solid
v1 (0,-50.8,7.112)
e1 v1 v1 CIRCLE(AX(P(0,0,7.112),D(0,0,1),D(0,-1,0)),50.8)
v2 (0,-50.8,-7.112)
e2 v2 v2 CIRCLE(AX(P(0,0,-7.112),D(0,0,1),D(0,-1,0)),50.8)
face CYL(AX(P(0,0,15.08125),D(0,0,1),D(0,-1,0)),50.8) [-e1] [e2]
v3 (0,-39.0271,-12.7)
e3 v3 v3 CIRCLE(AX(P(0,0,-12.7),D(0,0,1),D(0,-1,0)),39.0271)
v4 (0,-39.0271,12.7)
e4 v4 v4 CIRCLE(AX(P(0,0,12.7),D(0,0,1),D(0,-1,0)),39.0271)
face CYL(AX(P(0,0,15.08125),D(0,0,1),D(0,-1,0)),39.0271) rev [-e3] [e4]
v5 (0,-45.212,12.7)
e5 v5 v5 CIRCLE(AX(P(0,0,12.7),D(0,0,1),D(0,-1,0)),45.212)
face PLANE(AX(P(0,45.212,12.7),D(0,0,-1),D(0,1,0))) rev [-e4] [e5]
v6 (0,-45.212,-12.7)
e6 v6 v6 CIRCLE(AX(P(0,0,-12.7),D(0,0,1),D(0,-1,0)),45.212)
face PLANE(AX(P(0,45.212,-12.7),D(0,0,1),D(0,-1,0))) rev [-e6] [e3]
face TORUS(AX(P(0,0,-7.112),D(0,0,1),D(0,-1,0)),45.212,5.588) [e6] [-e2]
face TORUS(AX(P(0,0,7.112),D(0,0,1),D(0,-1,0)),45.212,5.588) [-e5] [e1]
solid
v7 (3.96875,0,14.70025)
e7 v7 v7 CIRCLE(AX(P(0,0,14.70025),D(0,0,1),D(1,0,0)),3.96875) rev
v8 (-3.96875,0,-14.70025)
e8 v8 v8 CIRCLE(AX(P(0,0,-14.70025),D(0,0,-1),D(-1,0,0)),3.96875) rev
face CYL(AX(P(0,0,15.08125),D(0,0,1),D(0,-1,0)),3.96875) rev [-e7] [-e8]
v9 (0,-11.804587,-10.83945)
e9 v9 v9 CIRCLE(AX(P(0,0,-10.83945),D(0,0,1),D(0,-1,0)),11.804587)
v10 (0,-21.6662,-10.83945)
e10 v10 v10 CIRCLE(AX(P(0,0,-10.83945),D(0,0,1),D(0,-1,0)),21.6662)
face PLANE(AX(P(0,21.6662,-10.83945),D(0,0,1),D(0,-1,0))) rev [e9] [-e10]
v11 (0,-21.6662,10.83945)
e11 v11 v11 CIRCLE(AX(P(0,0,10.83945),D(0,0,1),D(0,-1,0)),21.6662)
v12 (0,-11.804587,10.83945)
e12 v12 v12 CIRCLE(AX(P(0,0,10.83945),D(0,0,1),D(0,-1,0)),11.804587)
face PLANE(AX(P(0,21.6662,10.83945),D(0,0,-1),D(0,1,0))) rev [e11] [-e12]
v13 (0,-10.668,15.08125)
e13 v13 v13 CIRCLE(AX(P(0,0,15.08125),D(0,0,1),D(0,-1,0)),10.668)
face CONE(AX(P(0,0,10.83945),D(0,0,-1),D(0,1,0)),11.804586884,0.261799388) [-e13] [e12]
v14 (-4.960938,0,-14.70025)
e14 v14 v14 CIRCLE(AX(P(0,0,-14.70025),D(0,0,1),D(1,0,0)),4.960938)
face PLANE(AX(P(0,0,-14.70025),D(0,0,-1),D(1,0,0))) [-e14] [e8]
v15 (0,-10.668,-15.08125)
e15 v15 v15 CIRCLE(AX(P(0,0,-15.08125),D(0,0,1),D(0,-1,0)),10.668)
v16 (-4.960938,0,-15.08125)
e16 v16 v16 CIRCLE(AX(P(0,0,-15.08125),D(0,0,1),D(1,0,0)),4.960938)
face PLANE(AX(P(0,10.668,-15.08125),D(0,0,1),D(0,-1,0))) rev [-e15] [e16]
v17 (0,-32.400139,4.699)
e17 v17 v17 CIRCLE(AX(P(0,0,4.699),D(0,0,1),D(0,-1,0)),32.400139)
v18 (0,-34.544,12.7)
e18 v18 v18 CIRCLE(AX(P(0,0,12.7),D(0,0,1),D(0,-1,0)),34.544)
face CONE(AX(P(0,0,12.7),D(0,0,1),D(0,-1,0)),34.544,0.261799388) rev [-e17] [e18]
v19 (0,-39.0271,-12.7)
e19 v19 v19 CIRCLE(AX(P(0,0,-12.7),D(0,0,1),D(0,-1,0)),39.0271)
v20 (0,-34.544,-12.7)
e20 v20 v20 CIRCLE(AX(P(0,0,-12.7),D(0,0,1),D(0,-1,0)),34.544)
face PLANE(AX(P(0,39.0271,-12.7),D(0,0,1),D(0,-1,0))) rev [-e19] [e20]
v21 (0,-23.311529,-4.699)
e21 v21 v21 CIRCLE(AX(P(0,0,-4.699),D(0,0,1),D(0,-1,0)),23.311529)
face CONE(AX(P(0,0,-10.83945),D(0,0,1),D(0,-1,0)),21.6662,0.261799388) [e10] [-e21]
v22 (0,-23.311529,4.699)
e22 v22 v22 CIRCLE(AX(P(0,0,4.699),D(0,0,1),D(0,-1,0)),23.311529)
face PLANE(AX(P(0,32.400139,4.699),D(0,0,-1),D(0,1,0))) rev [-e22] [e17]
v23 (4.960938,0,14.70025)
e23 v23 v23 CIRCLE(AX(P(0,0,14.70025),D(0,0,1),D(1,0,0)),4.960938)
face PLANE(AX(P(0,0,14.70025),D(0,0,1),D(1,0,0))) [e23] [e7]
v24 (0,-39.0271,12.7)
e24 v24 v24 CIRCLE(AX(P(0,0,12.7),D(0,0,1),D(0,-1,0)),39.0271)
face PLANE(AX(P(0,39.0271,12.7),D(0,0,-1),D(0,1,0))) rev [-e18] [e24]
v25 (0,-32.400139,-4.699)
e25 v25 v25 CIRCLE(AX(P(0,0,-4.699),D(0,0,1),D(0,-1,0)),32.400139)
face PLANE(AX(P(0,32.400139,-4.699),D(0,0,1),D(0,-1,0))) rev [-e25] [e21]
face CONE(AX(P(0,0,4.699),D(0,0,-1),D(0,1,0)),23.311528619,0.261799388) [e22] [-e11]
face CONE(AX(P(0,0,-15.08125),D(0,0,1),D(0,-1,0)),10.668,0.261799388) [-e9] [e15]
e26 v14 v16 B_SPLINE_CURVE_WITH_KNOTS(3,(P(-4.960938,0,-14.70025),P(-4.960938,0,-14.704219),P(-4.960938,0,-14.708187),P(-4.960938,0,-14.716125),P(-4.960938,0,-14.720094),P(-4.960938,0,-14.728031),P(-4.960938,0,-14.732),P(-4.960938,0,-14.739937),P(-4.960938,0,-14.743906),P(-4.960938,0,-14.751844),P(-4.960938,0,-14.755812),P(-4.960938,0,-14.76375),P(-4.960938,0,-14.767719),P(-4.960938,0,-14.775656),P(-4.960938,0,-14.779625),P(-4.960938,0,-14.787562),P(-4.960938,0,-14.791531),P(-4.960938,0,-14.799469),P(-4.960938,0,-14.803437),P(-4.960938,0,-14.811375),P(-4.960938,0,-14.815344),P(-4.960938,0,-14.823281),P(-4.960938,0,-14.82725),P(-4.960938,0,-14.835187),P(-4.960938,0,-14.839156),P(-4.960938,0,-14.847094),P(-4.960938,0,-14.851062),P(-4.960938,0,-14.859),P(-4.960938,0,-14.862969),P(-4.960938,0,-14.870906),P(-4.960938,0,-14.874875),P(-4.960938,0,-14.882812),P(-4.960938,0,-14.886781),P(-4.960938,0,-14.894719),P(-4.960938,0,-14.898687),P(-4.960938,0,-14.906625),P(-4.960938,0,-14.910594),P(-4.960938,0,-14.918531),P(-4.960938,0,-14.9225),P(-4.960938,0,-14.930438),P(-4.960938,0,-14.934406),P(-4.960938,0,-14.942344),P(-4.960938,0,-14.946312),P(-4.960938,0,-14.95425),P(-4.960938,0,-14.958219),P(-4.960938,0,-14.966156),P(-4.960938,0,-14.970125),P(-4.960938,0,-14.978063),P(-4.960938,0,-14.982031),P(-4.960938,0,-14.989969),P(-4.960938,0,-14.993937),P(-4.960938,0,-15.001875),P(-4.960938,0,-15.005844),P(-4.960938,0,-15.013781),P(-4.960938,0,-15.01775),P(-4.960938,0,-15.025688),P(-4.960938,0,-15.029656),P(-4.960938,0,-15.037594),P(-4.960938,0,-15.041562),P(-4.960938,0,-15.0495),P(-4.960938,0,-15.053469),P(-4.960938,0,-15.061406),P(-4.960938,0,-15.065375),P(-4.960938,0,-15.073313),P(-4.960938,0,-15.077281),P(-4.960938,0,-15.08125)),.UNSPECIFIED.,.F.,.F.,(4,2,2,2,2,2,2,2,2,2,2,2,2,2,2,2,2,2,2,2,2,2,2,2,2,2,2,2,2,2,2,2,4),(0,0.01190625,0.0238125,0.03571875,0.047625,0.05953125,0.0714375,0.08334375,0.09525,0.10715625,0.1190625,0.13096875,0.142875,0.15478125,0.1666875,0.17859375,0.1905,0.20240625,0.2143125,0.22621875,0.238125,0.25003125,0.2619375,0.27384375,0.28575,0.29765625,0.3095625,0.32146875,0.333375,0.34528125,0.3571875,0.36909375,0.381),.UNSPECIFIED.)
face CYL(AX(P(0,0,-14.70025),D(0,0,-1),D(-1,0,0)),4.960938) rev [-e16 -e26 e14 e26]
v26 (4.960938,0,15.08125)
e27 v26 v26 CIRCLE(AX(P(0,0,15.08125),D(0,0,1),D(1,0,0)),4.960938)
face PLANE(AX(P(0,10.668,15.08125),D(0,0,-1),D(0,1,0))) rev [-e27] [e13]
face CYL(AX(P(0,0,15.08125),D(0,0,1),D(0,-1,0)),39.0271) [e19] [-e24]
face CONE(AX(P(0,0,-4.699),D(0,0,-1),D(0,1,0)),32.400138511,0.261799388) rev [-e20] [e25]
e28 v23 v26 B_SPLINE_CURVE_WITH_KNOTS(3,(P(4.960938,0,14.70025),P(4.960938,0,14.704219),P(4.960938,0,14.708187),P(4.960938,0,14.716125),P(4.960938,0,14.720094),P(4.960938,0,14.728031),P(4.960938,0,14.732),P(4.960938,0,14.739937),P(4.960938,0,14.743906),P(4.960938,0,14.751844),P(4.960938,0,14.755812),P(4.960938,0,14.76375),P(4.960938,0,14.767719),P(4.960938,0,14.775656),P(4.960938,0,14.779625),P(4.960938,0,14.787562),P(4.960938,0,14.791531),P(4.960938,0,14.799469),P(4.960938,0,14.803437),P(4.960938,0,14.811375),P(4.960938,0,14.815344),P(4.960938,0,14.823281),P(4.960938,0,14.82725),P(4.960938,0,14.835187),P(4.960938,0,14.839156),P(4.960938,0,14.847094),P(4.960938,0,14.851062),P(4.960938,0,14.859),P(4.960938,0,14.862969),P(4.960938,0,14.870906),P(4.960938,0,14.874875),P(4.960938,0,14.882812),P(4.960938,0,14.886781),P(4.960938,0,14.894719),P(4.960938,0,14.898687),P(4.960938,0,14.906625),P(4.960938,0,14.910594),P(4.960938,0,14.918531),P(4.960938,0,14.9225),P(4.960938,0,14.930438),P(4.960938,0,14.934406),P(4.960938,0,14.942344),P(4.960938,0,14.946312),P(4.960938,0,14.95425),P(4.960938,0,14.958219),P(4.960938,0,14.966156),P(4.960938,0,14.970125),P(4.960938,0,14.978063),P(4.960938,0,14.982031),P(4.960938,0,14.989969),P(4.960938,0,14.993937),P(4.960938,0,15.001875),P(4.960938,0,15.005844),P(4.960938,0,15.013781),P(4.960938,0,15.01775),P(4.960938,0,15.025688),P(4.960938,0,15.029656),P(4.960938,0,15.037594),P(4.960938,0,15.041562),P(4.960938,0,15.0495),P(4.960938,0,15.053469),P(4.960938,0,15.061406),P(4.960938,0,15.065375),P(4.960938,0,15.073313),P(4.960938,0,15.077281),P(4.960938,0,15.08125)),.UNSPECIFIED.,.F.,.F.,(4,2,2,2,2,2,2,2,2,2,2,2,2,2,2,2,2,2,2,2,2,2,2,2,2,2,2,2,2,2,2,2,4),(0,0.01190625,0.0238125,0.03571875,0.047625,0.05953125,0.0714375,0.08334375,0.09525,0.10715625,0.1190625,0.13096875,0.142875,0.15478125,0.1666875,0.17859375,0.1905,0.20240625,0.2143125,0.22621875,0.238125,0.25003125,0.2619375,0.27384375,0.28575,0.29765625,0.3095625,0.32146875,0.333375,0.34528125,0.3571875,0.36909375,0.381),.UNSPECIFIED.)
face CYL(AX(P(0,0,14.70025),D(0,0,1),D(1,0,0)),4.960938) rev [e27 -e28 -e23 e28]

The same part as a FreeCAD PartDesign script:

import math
import FreeCAD as App
import Part
import Sketcher
Q = App.Units.Quantity

doc = App.newDocument("Part")
body = doc.addObject("PartDesign::Body", "Body")

sketch1 = body.newObject("Sketcher::SketchObject", "Sketch")
sketch1.AttachmentSupport = (doc.getObject("YZ_Plane"), [""])
sketch1.MapMode = "FlatFace"
sketch1.addGeometry([
    Part.LineSegment(App.Vector(51, -7, 0), App.Vector(51, 7, 0)),
    Part.ArcOfCircle(Part.Circle(App.Vector(45, 7, 0), App.Vector(0, 0, 1), 6), math.radians(0), math.radians(90)),
    Part.LineSegment(App.Vector(45, 13, 0), App.Vector(39, 13, 0)),
    Part.LineSegment(App.Vector(39, 13, 0), App.Vector(39, -13, 0)),
    Part.LineSegment(App.Vector(39, -13, 0), App.Vector(45, -13, 0)),
    Part.ArcOfCircle(Part.Circle(App.Vector(45, -7, 0), App.Vector(0, 0, 1), 6), math.radians(-90), math.radians(0)),
], False)
sketch1.addConstraint([
    Sketcher.Constraint("Tangent", 0, 2, 1, 1),
    Sketcher.Constraint("Tangent", 1, 2, 2, 1),
    Sketcher.Constraint("Coincident", 2, 2, 3, 1),
    Sketcher.Constraint("Coincident", 3, 2, 4, 1),
    Sketcher.Constraint("Tangent", 4, 2, 5, 1),
    Sketcher.Constraint("Tangent", 5, 2, 0, 1),
    Sketcher.Constraint("Vertical", 0),
    Sketcher.Constraint("Horizontal", 2),
    Sketcher.Constraint("Vertical", 3),
    Sketcher.Constraint("Horizontal", 4),
    Sketcher.Constraint("Equal", 1, 5),
    Sketcher.Constraint("DistanceY", 3, 2, 3, 1, Q("1 in")),
    Sketcher.Constraint("Radius", 1, Q("0.22 in")),
    Sketcher.Constraint("DistanceX", -1, 1, 0, 2, Q("2 in")),
    Sketcher.Constraint("DistanceY", -1, 1, 1, 2, Q("0.5 in")),
    Sketcher.Constraint("DistanceX", 2, 2, 2, 1, Q("0.2435 in")),
])
revolution = body.newObject("PartDesign::Revolution", "Revolution")
revolution.Profile = sketch1
revolution.ReferenceAxis = (sketch1, ["V_Axis"])
revolution.Angle = 360
body2 = doc.addObject("PartDesign::Body", "Body001")

sketch2 = body2.newObject("Sketcher::SketchObject", "Sketch001")
sketch2.AttachmentSupport = (doc.getObject("YZ_Plane001"), [""])
sketch2.MapMode = "FlatFace"
sketch2.addGeometry([
    Part.LineSegment(App.Vector(39, -12.7, 0), App.Vector(39, 12.7, 0)),
    Part.LineSegment(App.Vector(39, 12.7, 0), App.Vector(34.5, 12.7, 0)),
    Part.LineSegment(App.Vector(34.5, 12.7, 0), App.Vector(32.4, 4.7, 0)),
    Part.LineSegment(App.Vector(32.4, 4.7, 0), App.Vector(23.3, 4.7, 0)),
    Part.LineSegment(App.Vector(23.3, 4.7, 0), App.Vector(21.7, 10.8, 0)),
    Part.LineSegment(App.Vector(21.7, 10.8, 0), App.Vector(11.8, 10.8, 0)),
    Part.LineSegment(App.Vector(11.8, 10.8, 0), App.Vector(10.7, 15.1, 0)),
    Part.LineSegment(App.Vector(10.7, 15.1, 0), App.Vector(4, 15.1, 0)),
    Part.LineSegment(App.Vector(4, 15.1, 0), App.Vector(4, -15.1, 0)),
    Part.LineSegment(App.Vector(4, -15.1, 0), App.Vector(10.7, -15.1, 0)),
    Part.LineSegment(App.Vector(10.7, -15.1, 0), App.Vector(11.8, -10.8, 0)),
    Part.LineSegment(App.Vector(11.8, -10.8, 0), App.Vector(21.7, -10.8, 0)),
    Part.LineSegment(App.Vector(21.7, -10.8, 0), App.Vector(23.3, -4.7, 0)),
    Part.LineSegment(App.Vector(23.3, -4.7, 0), App.Vector(32.4, -4.7, 0)),
    Part.LineSegment(App.Vector(32.4, -4.7, 0), App.Vector(34.5, -12.7, 0)),
    Part.LineSegment(App.Vector(34.5, -12.7, 0), App.Vector(39, -12.7, 0)),
], False)
sketch2.addConstraint([
    Sketcher.Constraint("Coincident", 0, 2, 1, 1),
    Sketcher.Constraint("Coincident", 1, 2, 2, 1),
    Sketcher.Constraint("Coincident", 2, 2, 3, 1),
    Sketcher.Constraint("Coincident", 3, 2, 4, 1),
    Sketcher.Constraint("Coincident", 4, 2, 5, 1),
    Sketcher.Constraint("Coincident", 5, 2, 6, 1),
    Sketcher.Constraint("Coincident", 6, 2, 7, 1),
    Sketcher.Constraint("Coincident", 7, 2, 8, 1),
    Sketcher.Constraint("Coincident", 8, 2, 9, 1),
    Sketcher.Constraint("Coincident", 9, 2, 10, 1),
    Sketcher.Constraint("Coincident", 10, 2, 11, 1),
    Sketcher.Constraint("Coincident", 11, 2, 12, 1),
    Sketcher.Constraint("Coincident", 12, 2, 13, 1),
    Sketcher.Constraint("Coincident", 13, 2, 14, 1),
    Sketcher.Constraint("Coincident", 14, 2, 15, 1),
    Sketcher.Constraint("Coincident", 15, 2, 0, 1),
    Sketcher.Constraint("Vertical", 0),
    Sketcher.Constraint("Horizontal", 1),
    Sketcher.Constraint("Horizontal", 3),
    Sketcher.Constraint("Horizontal", 5),
    Sketcher.Constraint("Horizontal", 7),
    Sketcher.Constraint("Vertical", 8),
    Sketcher.Constraint("Horizontal", 9),
    Sketcher.Constraint("Horizontal", 11),
    Sketcher.Constraint("Horizontal", 13),
    Sketcher.Constraint("Horizontal", 15),
    Sketcher.Constraint("Symmetric", 6, 2, 9, 2, -1),
    Sketcher.Constraint("Symmetric", 5, 2, 10, 2, -1),
    Sketcher.Constraint("Symmetric", 3, 2, 12, 2, -1),
    Sketcher.Constraint("Symmetric", 1, 2, 14, 2, -1),
    Sketcher.Constraint("Parallel", 4, 6),
    Sketcher.Constraint("Parallel", 2, 10),
    Sketcher.Constraint("Parallel", 10, 12),
    Sketcher.Constraint("Parallel", 6, 14),
    Sketcher.Constraint("DistanceY", 0, 1, 0, 2, Q("1 in")),
    Sketcher.Constraint("Angle", 2, Q("-105 deg")),
    Sketcher.Constraint("DistanceY", 8, 2, 8, 1, Q("1.1875 in")),
    Sketcher.Constraint("DistanceX", -1, 1, 1, 2, Q("1.36 in")),
    Sketcher.Constraint("DistanceX", -1, 1, 6, 2, Q("0.42 in")),
    Sketcher.Constraint("DistanceY", 12, 2, 3, 2, Q("0.37 in")),
    Sketcher.Constraint("DistanceX", 1, 2, 1, 1, Q("0.1765 in")),
    Sketcher.Constraint("DistanceX", -1, 1, 4, 2, Q("0.853 in")),
    Sketcher.Constraint("DistanceX", -1, 1, 7, 2, Q("0.15625 in")),
    Sketcher.Constraint("DistanceY", 5, 2, 6, 2, Q("0.167 in")),
])
revolution2 = body2.newObject("PartDesign::Revolution", "Revolution001")
revolution2.Profile = sketch2
revolution2.ReferenceAxis = (sketch2, ["V_Axis"])
revolution2.Angle = 360

sketch3 = body2.newObject("Sketcher::SketchObject", "Sketch002")
sketch3.AttachmentSupport = (doc.getObject("XY_Plane001"), [""])
sketch3.MapMode = "FlatFace"
sketch3.AttachmentOffset = App.Placement(App.Vector(0, 0, 0.59375 * 25.4), App.Rotation())
sketch3.addGeometry(Part.Circle(App.Vector(0, 0, 0), App.Vector(0, 0, 1), 5), False)
sketch3.addConstraint([
    Sketcher.Constraint("Coincident", 0, 3, -1, 1),
    Sketcher.Constraint("Diameter", 0, Q("0.390625 in")),
])
pocket1 = body2.newObject("PartDesign::Pocket", "Pocket")
pocket1.Profile = sketch3
pocket1.Length = Q("0.015 in")
doc.recompute()

mirrored = body2.newObject("PartDesign::Mirrored", "Mirrored")
mirrored.Originals = [pocket1]
mirrored.MirrorPlane = (doc.getObject("XY_Plane001"), [""])
body2.Tip = mirrored

doc.recompute()
